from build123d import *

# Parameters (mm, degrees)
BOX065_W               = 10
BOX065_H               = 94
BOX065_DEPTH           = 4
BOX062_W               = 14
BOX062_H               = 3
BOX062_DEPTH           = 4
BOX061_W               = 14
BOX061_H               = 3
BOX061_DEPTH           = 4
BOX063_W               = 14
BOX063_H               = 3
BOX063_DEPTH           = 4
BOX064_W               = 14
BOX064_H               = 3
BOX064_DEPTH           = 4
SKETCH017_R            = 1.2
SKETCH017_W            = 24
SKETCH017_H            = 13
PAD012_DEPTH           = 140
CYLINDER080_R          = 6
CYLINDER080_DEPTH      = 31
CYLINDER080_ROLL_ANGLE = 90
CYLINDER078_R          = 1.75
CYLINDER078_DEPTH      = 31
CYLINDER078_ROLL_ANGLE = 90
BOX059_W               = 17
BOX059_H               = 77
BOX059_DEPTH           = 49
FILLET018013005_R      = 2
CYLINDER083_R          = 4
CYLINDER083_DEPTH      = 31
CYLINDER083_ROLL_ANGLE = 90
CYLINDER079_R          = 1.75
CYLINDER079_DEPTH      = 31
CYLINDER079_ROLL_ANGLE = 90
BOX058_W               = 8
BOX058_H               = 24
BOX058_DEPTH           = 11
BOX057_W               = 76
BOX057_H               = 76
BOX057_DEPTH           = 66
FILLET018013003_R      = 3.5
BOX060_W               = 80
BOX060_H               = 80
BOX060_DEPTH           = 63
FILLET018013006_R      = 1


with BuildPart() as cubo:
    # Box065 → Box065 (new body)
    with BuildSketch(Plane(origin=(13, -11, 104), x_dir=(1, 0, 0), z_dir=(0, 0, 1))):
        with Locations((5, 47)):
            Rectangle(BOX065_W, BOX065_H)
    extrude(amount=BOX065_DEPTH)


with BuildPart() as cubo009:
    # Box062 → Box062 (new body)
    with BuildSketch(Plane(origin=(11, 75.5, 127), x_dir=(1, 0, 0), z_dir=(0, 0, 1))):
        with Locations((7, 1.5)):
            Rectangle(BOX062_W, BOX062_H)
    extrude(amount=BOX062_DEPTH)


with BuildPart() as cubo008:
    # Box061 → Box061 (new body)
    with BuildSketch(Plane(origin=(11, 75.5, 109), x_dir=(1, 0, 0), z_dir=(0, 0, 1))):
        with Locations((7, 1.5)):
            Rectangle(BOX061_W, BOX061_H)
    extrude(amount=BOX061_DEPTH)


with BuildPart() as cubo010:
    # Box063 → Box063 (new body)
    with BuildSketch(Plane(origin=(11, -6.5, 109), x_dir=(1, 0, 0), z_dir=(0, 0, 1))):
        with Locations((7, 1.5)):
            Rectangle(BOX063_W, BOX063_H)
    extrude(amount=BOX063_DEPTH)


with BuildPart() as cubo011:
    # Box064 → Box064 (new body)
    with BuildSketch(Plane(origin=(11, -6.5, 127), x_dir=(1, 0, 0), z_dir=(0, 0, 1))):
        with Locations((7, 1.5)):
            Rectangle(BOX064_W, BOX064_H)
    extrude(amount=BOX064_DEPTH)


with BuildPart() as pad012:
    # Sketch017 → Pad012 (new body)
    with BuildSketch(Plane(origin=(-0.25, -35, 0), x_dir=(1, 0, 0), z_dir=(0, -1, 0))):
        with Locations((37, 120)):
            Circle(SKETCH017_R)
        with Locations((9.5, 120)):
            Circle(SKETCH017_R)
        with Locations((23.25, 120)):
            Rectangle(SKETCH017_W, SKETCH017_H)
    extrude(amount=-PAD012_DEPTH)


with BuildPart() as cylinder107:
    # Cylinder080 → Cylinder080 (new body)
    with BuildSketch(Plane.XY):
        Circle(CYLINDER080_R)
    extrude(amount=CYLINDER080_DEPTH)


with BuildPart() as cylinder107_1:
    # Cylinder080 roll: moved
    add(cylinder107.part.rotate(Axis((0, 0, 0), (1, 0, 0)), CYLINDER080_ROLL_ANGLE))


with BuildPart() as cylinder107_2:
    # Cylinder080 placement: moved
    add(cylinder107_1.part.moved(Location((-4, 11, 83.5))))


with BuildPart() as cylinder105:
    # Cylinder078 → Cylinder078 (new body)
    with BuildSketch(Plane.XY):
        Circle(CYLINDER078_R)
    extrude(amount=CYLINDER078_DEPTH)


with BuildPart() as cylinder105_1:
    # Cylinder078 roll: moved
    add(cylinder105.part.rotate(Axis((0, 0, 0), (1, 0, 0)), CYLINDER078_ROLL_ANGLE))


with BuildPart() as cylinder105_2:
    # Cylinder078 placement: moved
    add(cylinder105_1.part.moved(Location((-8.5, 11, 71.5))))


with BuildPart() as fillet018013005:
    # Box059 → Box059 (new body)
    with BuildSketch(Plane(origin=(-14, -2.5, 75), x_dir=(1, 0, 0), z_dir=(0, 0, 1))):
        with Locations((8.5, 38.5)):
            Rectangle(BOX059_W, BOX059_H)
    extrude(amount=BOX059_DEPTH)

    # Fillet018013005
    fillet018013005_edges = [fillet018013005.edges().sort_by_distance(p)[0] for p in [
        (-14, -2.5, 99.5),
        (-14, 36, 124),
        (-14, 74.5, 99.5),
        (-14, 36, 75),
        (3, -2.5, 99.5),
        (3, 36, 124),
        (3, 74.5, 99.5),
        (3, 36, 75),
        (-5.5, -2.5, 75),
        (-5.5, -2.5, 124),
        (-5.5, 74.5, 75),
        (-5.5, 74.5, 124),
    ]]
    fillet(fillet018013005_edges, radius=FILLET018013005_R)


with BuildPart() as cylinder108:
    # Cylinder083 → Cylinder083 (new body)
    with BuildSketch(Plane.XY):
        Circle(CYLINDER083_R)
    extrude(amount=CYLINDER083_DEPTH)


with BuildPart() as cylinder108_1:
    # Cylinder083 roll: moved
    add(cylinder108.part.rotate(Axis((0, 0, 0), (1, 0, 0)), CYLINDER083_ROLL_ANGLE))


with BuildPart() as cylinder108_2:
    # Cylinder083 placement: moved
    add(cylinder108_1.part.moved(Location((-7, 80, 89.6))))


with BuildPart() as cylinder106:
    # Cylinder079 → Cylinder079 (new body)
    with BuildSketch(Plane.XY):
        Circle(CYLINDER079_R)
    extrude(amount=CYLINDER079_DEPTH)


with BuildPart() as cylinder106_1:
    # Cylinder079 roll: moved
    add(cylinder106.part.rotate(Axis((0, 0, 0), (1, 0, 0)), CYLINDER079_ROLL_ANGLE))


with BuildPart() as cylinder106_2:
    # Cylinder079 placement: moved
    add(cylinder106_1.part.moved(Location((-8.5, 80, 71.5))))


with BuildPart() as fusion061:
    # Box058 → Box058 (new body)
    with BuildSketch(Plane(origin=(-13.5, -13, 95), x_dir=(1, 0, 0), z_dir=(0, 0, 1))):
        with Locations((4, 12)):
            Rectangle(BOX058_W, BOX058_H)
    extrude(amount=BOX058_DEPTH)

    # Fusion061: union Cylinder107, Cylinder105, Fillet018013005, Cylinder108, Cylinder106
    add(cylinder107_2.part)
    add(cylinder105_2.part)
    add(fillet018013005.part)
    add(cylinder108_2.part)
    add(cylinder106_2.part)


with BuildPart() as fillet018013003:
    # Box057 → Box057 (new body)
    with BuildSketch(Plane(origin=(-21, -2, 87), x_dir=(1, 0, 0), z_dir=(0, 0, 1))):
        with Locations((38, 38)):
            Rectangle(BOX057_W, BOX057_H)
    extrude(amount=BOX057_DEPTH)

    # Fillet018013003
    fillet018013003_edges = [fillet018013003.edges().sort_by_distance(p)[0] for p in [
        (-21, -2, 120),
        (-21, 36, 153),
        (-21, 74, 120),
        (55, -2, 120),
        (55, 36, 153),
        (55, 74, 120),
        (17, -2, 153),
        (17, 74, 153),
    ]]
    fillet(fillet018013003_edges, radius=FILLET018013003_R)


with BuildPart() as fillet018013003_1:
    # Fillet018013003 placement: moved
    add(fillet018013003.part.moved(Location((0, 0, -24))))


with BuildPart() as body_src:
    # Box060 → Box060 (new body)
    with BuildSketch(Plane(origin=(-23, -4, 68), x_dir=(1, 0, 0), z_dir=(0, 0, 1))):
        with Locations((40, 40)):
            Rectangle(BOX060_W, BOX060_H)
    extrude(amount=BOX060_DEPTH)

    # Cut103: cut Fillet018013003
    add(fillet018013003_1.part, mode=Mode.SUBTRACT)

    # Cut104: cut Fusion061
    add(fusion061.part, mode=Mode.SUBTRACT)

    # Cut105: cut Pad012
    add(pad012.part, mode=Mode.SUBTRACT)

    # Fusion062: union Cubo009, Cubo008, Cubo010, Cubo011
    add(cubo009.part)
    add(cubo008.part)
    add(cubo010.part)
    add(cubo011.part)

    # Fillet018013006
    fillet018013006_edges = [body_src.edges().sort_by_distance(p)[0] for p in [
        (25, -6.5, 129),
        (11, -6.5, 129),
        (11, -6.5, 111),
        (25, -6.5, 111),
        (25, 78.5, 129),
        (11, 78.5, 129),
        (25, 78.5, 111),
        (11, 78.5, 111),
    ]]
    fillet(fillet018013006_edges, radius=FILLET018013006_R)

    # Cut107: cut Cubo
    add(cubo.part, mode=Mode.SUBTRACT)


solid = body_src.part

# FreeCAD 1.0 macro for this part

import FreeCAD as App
import Part
import Sketcher

V = App.Vector
Q = App.Units.Quantity


def edges_at(feature, points):
    """Names of the edges that pass closest to the given points."""
    edges = feature.Shape.Edges
    near = lambda p: min(range(len(edges)), key=lambda i: edges[i].distToShape(Part.Vertex(*p))[0])
    return sorted({f"Edge{near(p) + 1}" for p in points})


def add_polygon(sketch, points):
    """Adds a closed chain of lines whose ends are joined by coincident constraints."""
    first, n = sketch.GeometryCount, len(points)
    for a, b in zip(points, points[1:] + points[:1]):
        sketch.addGeometry(Part.LineSegment(App.Vector(*a, 0), App.Vector(*b, 0)), False)
    for i in range(n):
        sketch.addConstraint(Sketcher.Constraint("Coincident", first + i, 2, first + (i + 1) % n, 1))

doc = App.newDocument("Part")
body = doc.addObject("PartDesign::Body", "Body")

# Sketch on XY plane
sketch1 = doc.addObject("Sketcher::SketchObject", "Sketch")
body.addObject(sketch1)
sketch1.AttachmentSupport = (doc.XY_Plane, [""])
sketch1.MapMode = "FlatFace"
sketch1.AttachmentOffset = App.Placement(V(0, 0, 104), App.Rotation())
add_polygon(sketch1, [(13, 83), (13, -11), (23, -11), (23, 83)])  # lines 0-3
sketch1.addConstraint([
    Sketcher.Constraint("Vertical", 0),
    Sketcher.Constraint("Horizontal", 1),
    Sketcher.Constraint("Vertical", 2),
    Sketcher.Constraint("Horizontal", 3),
    Sketcher.Constraint("DistanceX", 1, 1, 1, 2, Q("10 mm")),
    Sketcher.Constraint("DistanceY", 0, 2, 0, 1, Q("94 mm")),
    Sketcher.Constraint("DistanceX", -1, 1, 0, 2, Q("13 mm")),
    Sketcher.Constraint("DistanceY", 0, 2, -1, 1, Q("11 mm")),
])
pad1 = doc.addObject("PartDesign::Pad", "Pad")
body.addObject(pad1)
pad1.Profile = sketch1
pad1.Length = 4
body2 = doc.addObject("PartDesign::Body", "Body001")

# Sketch on XY plane
sketch2 = doc.addObject("Sketcher::SketchObject", "Sketch001")
body2.addObject(sketch2)
sketch2.AttachmentSupport = (doc.getObject("XY_Plane001"), [""])
sketch2.MapMode = "FlatFace"
sketch2.AttachmentOffset = App.Placement(V(0, 0, 127), App.Rotation())
add_polygon(sketch2, [(11, 78.5), (11, 75.5), (25, 75.5), (25, 78.5)])  # lines 0-3
sketch2.addConstraint([
    Sketcher.Constraint("Vertical", 0),
    Sketcher.Constraint("Horizontal", 1),
    Sketcher.Constraint("Vertical", 2),
    Sketcher.Constraint("Horizontal", 3),
    Sketcher.Constraint("DistanceX", 1, 1, 1, 2, Q("14 mm")),
    Sketcher.Constraint("DistanceY", 0, 2, 0, 1, Q("3 mm")),
    Sketcher.Constraint("DistanceX", -1, 1, 0, 2, Q("11 mm")),
    Sketcher.Constraint("DistanceY", -1, 1, 0, 2, Q("75.5 mm")),
])
pad2 = doc.addObject("PartDesign::Pad", "Pad001")
body2.addObject(pad2)
pad2.Profile = sketch2
pad2.Length = 4
body3 = doc.addObject("PartDesign::Body", "Body002")

# Sketch on XY plane
sketch3 = doc.addObject("Sketcher::SketchObject", "Sketch002")
body3.addObject(sketch3)
sketch3.AttachmentSupport = (doc.getObject("XY_Plane002"), [""])
sketch3.MapMode = "FlatFace"
sketch3.AttachmentOffset = App.Placement(V(0, 0, 109), App.Rotation())
add_polygon(sketch3, [(11, 78.5), (11, 75.5), (25, 75.5), (25, 78.5)])  # lines 0-3
sketch3.addConstraint([
    Sketcher.Constraint("Vertical", 0),
    Sketcher.Constraint("Horizontal", 1),
    Sketcher.Constraint("Vertical", 2),
    Sketcher.Constraint("Horizontal", 3),
    Sketcher.Constraint("DistanceX", 1, 1, 1, 2, Q("14 mm")),
    Sketcher.Constraint("DistanceY", 0, 2, 0, 1, Q("3 mm")),
    Sketcher.Constraint("DistanceX", -1, 1, 0, 2, Q("11 mm")),
    Sketcher.Constraint("DistanceY", -1, 1, 0, 2, Q("75.5 mm")),
])
pad3 = doc.addObject("PartDesign::Pad", "Pad002")
body3.addObject(pad3)
pad3.Profile = sketch3
pad3.Length = 4
body4 = doc.addObject("PartDesign::Body", "Body003")

# Sketch on XY plane
sketch4 = doc.addObject("Sketcher::SketchObject", "Sketch003")
body4.addObject(sketch4)
sketch4.AttachmentSupport = (doc.getObject("XY_Plane003"), [""])
sketch4.MapMode = "FlatFace"
sketch4.AttachmentOffset = App.Placement(V(0, 0, 109), App.Rotation())
add_polygon(sketch4, [(11, -3.5), (11, -6.5), (25, -6.5), (25, -3.5)])  # lines 0-3
sketch4.addConstraint([
    Sketcher.Constraint("Vertical", 0),
    Sketcher.Constraint("Horizontal", 1),
    Sketcher.Constraint("Vertical", 2),
    Sketcher.Constraint("Horizontal", 3),
    Sketcher.Constraint("DistanceX", 1, 1, 1, 2, Q("14 mm")),
    Sketcher.Constraint("DistanceY", 0, 2, 0, 1, Q("3 mm")),
    Sketcher.Constraint("DistanceX", -1, 1, 0, 2, Q("11 mm")),
    Sketcher.Constraint("DistanceY", 0, 2, -1, 1, Q("6.5 mm")),
])
pad4 = doc.addObject("PartDesign::Pad", "Pad003")
body4.addObject(pad4)
pad4.Profile = sketch4
pad4.Length = 4
body5 = doc.addObject("PartDesign::Body", "Body004")

# Sketch on XY plane
sketch5 = doc.addObject("Sketcher::SketchObject", "Sketch004")
body5.addObject(sketch5)
sketch5.AttachmentSupport = (doc.getObject("XY_Plane004"), [""])
sketch5.MapMode = "FlatFace"
sketch5.AttachmentOffset = App.Placement(V(0, 0, 127), App.Rotation())
add_polygon(sketch5, [(11, -3.5), (11, -6.5), (25, -6.5), (25, -3.5)])  # lines 0-3
sketch5.addConstraint([
    Sketcher.Constraint("Vertical", 0),
    Sketcher.Constraint("Horizontal", 1),
    Sketcher.Constraint("Vertical", 2),
    Sketcher.Constraint("Horizontal", 3),
    Sketcher.Constraint("DistanceX", 1, 1, 1, 2, Q("14 mm")),
    Sketcher.Constraint("DistanceY", 0, 2, 0, 1, Q("3 mm")),
    Sketcher.Constraint("DistanceX", -1, 1, 0, 2, Q("11 mm")),
    Sketcher.Constraint("DistanceY", 0, 2, -1, 1, Q("6.5 mm")),
])
pad5 = doc.addObject("PartDesign::Pad", "Pad004")
body5.addObject(pad5)
pad5.Profile = sketch5
pad5.Length = 4
body6 = doc.addObject("PartDesign::Body", "Body005")
body6.AllowCompound = True

# Sketch on XZ plane
sketch6 = doc.addObject("Sketcher::SketchObject", "Sketch005")
body6.addObject(sketch6)
sketch6.AttachmentSupport = (doc.getObject("XZ_Plane005"), [""])
sketch6.MapMode = "FlatFace"
sketch6.AttachmentOffset = App.Placement(V(0, 0, 35), App.Rotation())
sketch6.addGeometry(Part.Circle(V(36.8, 120, 0), V(0, 0, 1), 1.2), False)  # 0
sketch6.addGeometry(Part.Circle(V(9.2, 120, 0), V(0, 0, 1), 1.2), False)  # 1
add_polygon(sketch6, [(11, 126.5), (11, 113.5), (35, 113.5), (35, 126.5)])  # lines 2-5
sketch6.addConstraint([
    Sketcher.Constraint("Vertical", 2),
    Sketcher.Constraint("Horizontal", 3),
    Sketcher.Constraint("Vertical", 4),
    Sketcher.Constraint("Horizontal", 5),
    Sketcher.Constraint("Equal", 0, 1),
    Sketcher.Constraint("Horizontal", 0, 3, 1, 3),
    Sketcher.Constraint("Diameter", 0, Q("2.4 mm")),
    Sketcher.Constraint("DistanceX", 3, 1, 3, 2, Q("24 mm")),
    Sketcher.Constraint("DistanceY", 2, 2, 2, 1, Q("13 mm")),
    Sketcher.Constraint("DistanceY", -1, 1, 0, 3, Q("120 mm")),
    Sketcher.Constraint("DistanceX", -1, 1, 2, 2, Q("11 mm")),
    Sketcher.Constraint("DistanceY", -1, 1, 2, 2, Q("113.5 mm")),
    Sketcher.Constraint("DistanceX", 1, 3, 0, 3, Q("27.5 mm")),
    Sketcher.Constraint("DistanceX", -1, 1, 0, 3, Q("36.75 mm")),
])
pad6 = doc.addObject("PartDesign::Pad", "Pad005")
body6.addObject(pad6)
pad6.Profile = sketch6
pad6.Length = 140
pad6.Reversed = True
body7 = doc.addObject("PartDesign::Body", "Body006")

# Sketch on XY plane
sketch7 = doc.addObject("Sketcher::SketchObject", "Sketch006")
body7.addObject(sketch7)
sketch7.AttachmentSupport = (doc.getObject("XY_Plane006"), [""])
sketch7.MapMode = "FlatFace"
sketch7.addGeometry(Part.Circle(V(0, 0, 0), V(0, 0, 1), 6), False)
sketch7.addConstraint([
    Sketcher.Constraint("Coincident", 0, 3, -1, 1),
    Sketcher.Constraint("Diameter", 0, Q("12 mm")),
])
pad7 = doc.addObject("PartDesign::Pad", "Pad006")
body7.addObject(pad7)
pad7.Profile = sketch7
pad7.Length = 31
body8 = doc.addObject("PartDesign::Body", "Body007")
doc.recompute()

body7.Placement = App.Placement(V(0, 0, 0), App.Rotation(V(1, 0, 0), 90))
boolean = doc.addObject("PartDesign::Boolean", "Boolean")
body8.addObject(boolean)
boolean.Type = "Fuse"
boolean.addObjects([body7])
body9 = doc.addObject("PartDesign::Body", "Body008")
doc.recompute()

body8.Placement = App.Placement(V(-4, 11, 83.5), App.Rotation(V(0, 0, 1), 0))
boolean2 = doc.addObject("PartDesign::Boolean", "Boolean001")
body9.addObject(boolean2)
boolean2.Type = "Fuse"
boolean2.addObjects([body8])
body10 = doc.addObject("PartDesign::Body", "Body009")

# Sketch on XY plane
sketch8 = doc.addObject("Sketcher::SketchObject", "Sketch007")
body10.addObject(sketch8)
sketch8.AttachmentSupport = (doc.getObject("XY_Plane009"), [""])
sketch8.MapMode = "FlatFace"
sketch8.addGeometry(Part.Circle(V(0, 0, 0), V(0, 0, 1), 1.8), False)
sketch8.addConstraint([
    Sketcher.Constraint("Coincident", 0, 3, -1, 1),
    Sketcher.Constraint("Diameter", 0, Q("3.5 mm")),
])
pad8 = doc.addObject("PartDesign::Pad", "Pad007")
body10.addObject(pad8)
pad8.Profile = sketch8
pad8.Length = 31
body11 = doc.addObject("PartDesign::Body", "Body010")
doc.recompute()

body10.Placement = App.Placement(V(0, 0, 0), App.Rotation(V(1, 0, 0), 90))
boolean3 = doc.addObject("PartDesign::Boolean", "Boolean002")
body11.addObject(boolean3)
boolean3.Type = "Fuse"
boolean3.addObjects([body10])
body12 = doc.addObject("PartDesign::Body", "Body011")
doc.recompute()

body11.Placement = App.Placement(V(-8.5, 11, 71.5), App.Rotation(V(0, 0, 1), 0))
boolean4 = doc.addObject("PartDesign::Boolean", "Boolean003")
body12.addObject(boolean4)
boolean4.Type = "Fuse"
boolean4.addObjects([body11])
body13 = doc.addObject("PartDesign::Body", "Body012")

# Sketch on XY plane
sketch9 = doc.addObject("Sketcher::SketchObject", "Sketch008")
body13.addObject(sketch9)
sketch9.AttachmentSupport = (doc.getObject("XY_Plane012"), [""])
sketch9.MapMode = "FlatFace"
sketch9.AttachmentOffset = App.Placement(V(0, 0, 75), App.Rotation())
add_polygon(sketch9, [(-14, 74), (-14, -2), (3, -2), (3, 74)])  # lines 0-3
sketch9.addConstraint([
    Sketcher.Constraint("Vertical", 0),
    Sketcher.Constraint("Horizontal", 1),
    Sketcher.Constraint("Vertical", 2),
    Sketcher.Constraint("Horizontal", 3),
    Sketcher.Constraint("DistanceX", 1, 1, 1, 2, Q("17 mm")),
    Sketcher.Constraint("DistanceY", 0, 2, 0, 1, Q("77 mm")),
    Sketcher.Constraint("DistanceX", 0, 2, -1, 1, Q("14 mm")),
    Sketcher.Constraint("DistanceY", 0, 2, -1, 1, Q("2.5 mm")),
])
pad9 = doc.addObject("PartDesign::Pad", "Pad008")
body13.addObject(pad9)
pad9.Profile = sketch9
pad9.Length = 49
doc.recompute()

fillet = doc.addObject("PartDesign::Fillet", "Fillet")
body13.addObject(fillet)
fillet.Base = (pad9, ["Edge1"])
fillet.UseAllEdges = True
fillet.Radius = 2
body14 = doc.addObject("PartDesign::Body", "Body013")

# Sketch on XY plane
sketch10 = doc.addObject("Sketcher::SketchObject", "Sketch009")
body14.addObject(sketch10)
sketch10.AttachmentSupport = (doc.getObject("XY_Plane013"), [""])
sketch10.MapMode = "FlatFace"
sketch10.addGeometry(Part.Circle(V(0, 0, 0), V(0, 0, 1), 4), False)
sketch10.addConstraint([
    Sketcher.Constraint("Coincident", 0, 3, -1, 1),
    Sketcher.Constraint("Diameter", 0, Q("8 mm")),
])
pad10 = doc.addObject("PartDesign::Pad", "Pad009")
body14.addObject(pad10)
pad10.Profile = sketch10
pad10.Length = 31
body15 = doc.addObject("PartDesign::Body", "Body014")
doc.recompute()

body14.Placement = App.Placement(V(0, 0, 0), App.Rotation(V(1, 0, 0), 90))
boolean5 = doc.addObject("PartDesign::Boolean", "Boolean004")
body15.addObject(boolean5)
boolean5.Type = "Fuse"
boolean5.addObjects([body14])
body16 = doc.addObject("PartDesign::Body", "Body015")
doc.recompute()

body15.Placement = App.Placement(V(-7, 80, 89.6), App.Rotation(V(0, 0, 1), 0))
boolean6 = doc.addObject("PartDesign::Boolean", "Boolean005")
body16.addObject(boolean6)
boolean6.Type = "Fuse"
boolean6.addObjects([body15])
body17 = doc.addObject("PartDesign::Body", "Body016")

# Sketch on XY plane
sketch11 = doc.addObject("Sketcher::SketchObject", "Sketch010")
body17.addObject(sketch11)
sketch11.AttachmentSupport = (doc.getObject("XY_Plane016"), [""])
sketch11.MapMode = "FlatFace"
sketch11.addGeometry(Part.Circle(V(0, 0, 0), V(0, 0, 1), 1.8), False)
sketch11.addConstraint([
    Sketcher.Constraint("Coincident", 0, 3, -1, 1),
    Sketcher.Constraint("Diameter", 0, Q("3.5 mm")),
])
pad11 = doc.addObject("PartDesign::Pad", "Pad010")
body17.addObject(pad11)
pad11.Profile = sketch11
pad11.Length = 31
body18 = doc.addObject("PartDesign::Body", "Body017")
doc.recompute()

body17.Placement = App.Placement(V(0, 0, 0), App.Rotation(V(1, 0, 0), 90))
boolean7 = doc.addObject("PartDesign::Boolean", "Boolean006")
body18.addObject(boolean7)
boolean7.Type = "Fuse"
boolean7.addObjects([body17])
body19 = doc.addObject("PartDesign::Body", "Body018")
doc.recompute()

body18.Placement = App.Placement(V(-8.5, 80, 71.5), App.Rotation(V(0, 0, 1), 0))
boolean8 = doc.addObject("PartDesign::Boolean", "Boolean007")
body19.addObject(boolean8)
boolean8.Type = "Fuse"
boolean8.addObjects([body18])
body20 = doc.addObject("PartDesign::Body", "Body019")
body20.AllowCompound = True

# Sketch on XY plane
sketch12 = doc.addObject("Sketcher::SketchObject", "Sketch011")
body20.addObject(sketch12)
sketch12.AttachmentSupport = (doc.getObject("XY_Plane019"), [""])
sketch12.MapMode = "FlatFace"
sketch12.AttachmentOffset = App.Placement(V(0, 0, 95), App.Rotation())
add_polygon(sketch12, [(-14, 11), (-14, -13), (-6, -13), (-6, 11)])  # lines 0-3
sketch12.addConstraint([
    Sketcher.Constraint("Vertical", 0),
    Sketcher.Constraint("Horizontal", 1),
    Sketcher.Constraint("Vertical", 2),
    Sketcher.Constraint("Horizontal", 3),
    Sketcher.Constraint("DistanceX", 1, 1, 1, 2, Q("8 mm")),
    Sketcher.Constraint("DistanceY", 0, 2, 0, 1, Q("24 mm")),
    Sketcher.Constraint("DistanceY", 0, 2, -1, 1, Q("13 mm")),
    Sketcher.Constraint("DistanceX", 0, 2, -1, 1, Q("13.5 mm")),
])
pad12 = doc.addObject("PartDesign::Pad", "Pad011")
body20.addObject(pad12)
pad12.Profile = sketch12
pad12.Length = 11
doc.recompute()

boolean9 = doc.addObject("PartDesign::Boolean", "Boolean008")
body20.addObject(boolean9)
boolean9.Type = "Fuse"
boolean9.addObjects([body9])
doc.recompute()

boolean10 = doc.addObject("PartDesign::Boolean", "Boolean009")
body20.addObject(boolean10)
boolean10.Type = "Fuse"
boolean10.addObjects([body12])
doc.recompute()

boolean11 = doc.addObject("PartDesign::Boolean", "Boolean010")
body20.addObject(boolean11)
boolean11.Type = "Fuse"
boolean11.addObjects([body13])
doc.recompute()

boolean12 = doc.addObject("PartDesign::Boolean", "Boolean011")
body20.addObject(boolean12)
boolean12.Type = "Fuse"
boolean12.addObjects([body16])
doc.recompute()

boolean13 = doc.addObject("PartDesign::Boolean", "Boolean012")
body20.addObject(boolean13)
boolean13.Type = "Fuse"
boolean13.addObjects([body19])
body21 = doc.addObject("PartDesign::Body", "Body020")

# Sketch on XY plane
sketch13 = doc.addObject("Sketcher::SketchObject", "Sketch012")
body21.addObject(sketch13)
sketch13.AttachmentSupport = (doc.getObject("XY_Plane020"), [""])
sketch13.MapMode = "FlatFace"
sketch13.AttachmentOffset = App.Placement(V(0, 0, 87), App.Rotation())
add_polygon(sketch13, [(-21, 74), (-21, -2), (55, -2), (55, 74)])  # lines 0-3
sketch13.addConstraint([
    Sketcher.Constraint("Vertical", 0),
    Sketcher.Constraint("Horizontal", 1),
    Sketcher.Constraint("Vertical", 2),
    Sketcher.Constraint("Horizontal", 3),
    Sketcher.Constraint("Equal", 3, 0),
    Sketcher.Constraint("DistanceX", 1, 1, 1, 2, Q("76 mm")),
    Sketcher.Constraint("DistanceX", 0, 2, -1, 1, Q("21 mm")),
    Sketcher.Constraint("DistanceY", 0, 2, -1, 1, Q("2 mm")),
])
pad13 = doc.addObject("PartDesign::Pad", "Pad012")
body21.addObject(pad13)
pad13.Profile = sketch13
pad13.Length = 66
doc.recompute()

fillet2 = doc.addObject("PartDesign::Fillet", "Fillet001")
body21.addObject(fillet2)
fillet2.Base = (pad13, edges_at(pad13, [
    (-21, -2, 120),
    (-21, 36, 153),
    (-21, 74, 120),
    (55, -2, 120),
    (55, 36, 153),
    (55, 74, 120),
    (17, -2, 153),
    (17, 74, 153),
]))
fillet2.Radius = 3.5
body22 = doc.addObject("PartDesign::Body", "Body021")
doc.recompute()

body21.Placement = App.Placement(V(0, 0, -24), App.Rotation(V(0, 0, 1), 0))
boolean14 = doc.addObject("PartDesign::Boolean", "Boolean013")
body22.addObject(boolean14)
boolean14.Type = "Fuse"
boolean14.addObjects([body21])
body23 = doc.addObject("PartDesign::Body", "Body022")

# Sketch on XY plane
sketch14 = doc.addObject("Sketcher::SketchObject", "Sketch013")
body23.addObject(sketch14)
sketch14.AttachmentSupport = (doc.getObject("XY_Plane022"), [""])
sketch14.MapMode = "FlatFace"
sketch14.AttachmentOffset = App.Placement(V(0, 0, 68), App.Rotation())
add_polygon(sketch14, [(-23, 76), (-23, -4), (57, -4), (57, 76)])  # lines 0-3
sketch14.addConstraint([
    Sketcher.Constraint("Vertical", 0),
    Sketcher.Constraint("Horizontal", 1),
    Sketcher.Constraint("Vertical", 2),
    Sketcher.Constraint("Horizontal", 3),
    Sketcher.Constraint("Equal", 3, 0),
    Sketcher.Constraint("DistanceX", 1, 1, 1, 2, Q("80 mm")),
    Sketcher.Constraint("DistanceX", 0, 2, -1, 1, Q("23 mm")),
    Sketcher.Constraint("DistanceY", 0, 2, -1, 1, Q("4 mm")),
])
pad14 = doc.addObject("PartDesign::Pad", "Pad013")
body23.addObject(pad14)
pad14.Profile = sketch14
pad14.Length = 63
doc.recompute()

boolean15 = doc.addObject("PartDesign::Boolean", "Boolean014")
body23.addObject(boolean15)
boolean15.Type = "Cut"
boolean15.addObjects([body22])
doc.recompute()

boolean16 = doc.addObject("PartDesign::Boolean", "Boolean015")
body23.addObject(boolean16)
boolean16.Type = "Cut"
boolean16.addObjects([body20])
doc.recompute()

boolean17 = doc.addObject("PartDesign::Boolean", "Boolean016")
body23.addObject(boolean17)
boolean17.Type = "Cut"
boolean17.addObjects([body6])
doc.recompute()

boolean18 = doc.addObject("PartDesign::Boolean", "Boolean017")
body23.addObject(boolean18)
boolean18.Type = "Fuse"
boolean18.addObjects([body2])
doc.recompute()

boolean19 = doc.addObject("PartDesign::Boolean", "Boolean018")
body23.addObject(boolean19)
boolean19.Type = "Fuse"
boolean19.addObjects([body3])
doc.recompute()

boolean20 = doc.addObject("PartDesign::Boolean", "Boolean019")
body23.addObject(boolean20)
boolean20.Type = "Fuse"
boolean20.addObjects([body4])
doc.recompute()

boolean21 = doc.addObject("PartDesign::Boolean", "Boolean020")
body23.addObject(boolean21)
boolean21.Type = "Fuse"
boolean21.addObjects([body5])
doc.recompute()

fillet3 = doc.addObject("PartDesign::Fillet", "Fillet002")
body23.addObject(fillet3)
fillet3.Base = (boolean21, edges_at(boolean21, [
    (25, -6.5, 129),
    (11, -6.5, 129),
    (11, -6.5, 111),
    (25, -6.5, 111),
    (25, 78.5, 129),
    (11, 78.5, 129),
    (25, 78.5, 111),
    (11, 78.5, 111),
]))
fillet3.Radius = 1
doc.recompute()

boolean22 = doc.addObject("PartDesign::Boolean", "Boolean021")
body23.addObject(boolean22)
boolean22.Type = "Cut"
boolean22.addObjects([body])

doc.recompute()
